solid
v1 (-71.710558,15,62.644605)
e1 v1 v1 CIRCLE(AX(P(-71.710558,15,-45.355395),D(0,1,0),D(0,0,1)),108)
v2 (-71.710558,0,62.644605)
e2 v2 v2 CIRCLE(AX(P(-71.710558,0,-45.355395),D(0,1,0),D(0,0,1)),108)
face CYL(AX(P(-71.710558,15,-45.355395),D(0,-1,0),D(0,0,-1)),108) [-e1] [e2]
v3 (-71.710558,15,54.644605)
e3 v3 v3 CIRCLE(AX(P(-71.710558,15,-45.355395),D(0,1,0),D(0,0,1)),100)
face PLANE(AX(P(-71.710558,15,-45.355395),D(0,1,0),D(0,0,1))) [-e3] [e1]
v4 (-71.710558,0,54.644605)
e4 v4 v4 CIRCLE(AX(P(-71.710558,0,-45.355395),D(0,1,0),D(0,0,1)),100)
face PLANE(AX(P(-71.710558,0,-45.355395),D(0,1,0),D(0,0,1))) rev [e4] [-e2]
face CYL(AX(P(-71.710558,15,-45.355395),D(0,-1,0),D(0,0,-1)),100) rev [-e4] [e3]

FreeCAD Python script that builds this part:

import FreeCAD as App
import Part
import Sketcher

doc = App.newDocument("Part")
body = doc.addObject("PartDesign::Body", "Body")

# Sketch on XZ plane
sketch1 = body.newObject("Sketcher::SketchObject", "Sketch")
sketch1.AttachmentSupport = (doc.getObject("XZ_Plane"), [""])
sketch1.MapMode = "FlatFace"
sketch1.addGeometry([
    Part.Circle(App.Vector(-72, -45, 0), App.Vector(0, 0, 1), 108),
    Part.Circle(App.Vector(-72, -45, 0), App.Vector(0, 0, 1), 100),
], False)
sketch1.addConstraint([
    Sketcher.Constraint("Coincident", 1, 3, 0, 3),
    Sketcher.Constraint("Diameter", 0, 216.0),
    Sketcher.Constraint("Diameter", 1, 200.0),
    Sketcher.Constraint("DistanceX", 0, 3, -1, 1, 71.710558),
    Sketcher.Constraint("DistanceY", 0, 3, -1, 1, 45.355395),
])
pad1 = body.newObject("PartDesign::Pad", "Pad")
pad1.Profile = sketch1
pad1.Length = 15
pad1.Reversed = True

doc.recompute()
